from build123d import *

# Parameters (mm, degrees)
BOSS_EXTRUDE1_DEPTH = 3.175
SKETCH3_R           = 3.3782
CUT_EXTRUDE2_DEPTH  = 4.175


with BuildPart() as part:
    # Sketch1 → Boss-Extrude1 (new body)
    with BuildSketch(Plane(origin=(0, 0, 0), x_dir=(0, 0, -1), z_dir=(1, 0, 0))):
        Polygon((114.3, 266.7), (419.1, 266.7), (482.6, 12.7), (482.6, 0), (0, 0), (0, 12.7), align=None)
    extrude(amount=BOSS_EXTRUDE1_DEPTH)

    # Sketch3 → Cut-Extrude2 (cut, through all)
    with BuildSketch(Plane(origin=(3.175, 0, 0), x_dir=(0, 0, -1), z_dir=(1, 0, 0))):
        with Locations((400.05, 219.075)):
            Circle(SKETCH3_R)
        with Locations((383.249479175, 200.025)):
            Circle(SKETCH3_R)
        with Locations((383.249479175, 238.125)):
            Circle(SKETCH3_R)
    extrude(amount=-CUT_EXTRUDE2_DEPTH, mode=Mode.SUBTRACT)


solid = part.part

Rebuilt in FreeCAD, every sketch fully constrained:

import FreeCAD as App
import Part
import Sketcher
Q = App.Units.Quantity

doc = App.newDocument("Part")
body = doc.addObject("PartDesign::Body", "Body")

# Sketch on YZ plane
sketch1 = body.newObject("Sketcher::SketchObject", "Sketch")
sketch1.AttachmentSupport = (doc.getObject("YZ_Plane"), [""])
sketch1.MapMode = "FlatFace"
sketch1.addGeometry(Part.LineSegment(App.Vector(267, -419, 0), App.Vector(267, -114, 0)), False)
sketch1.addGeometry(Part.LineSegment(App.Vector(267, -114, 0), App.Vector(13, 0, 0)), False)
sketch1.addGeometry(Part.LineSegment(App.Vector(13, 0, 0), App.Vector(0, 0, 0)), False)
sketch1.addGeometry(Part.LineSegment(App.Vector(0, 0, 0), App.Vector(0, -483, 0)), False)
sketch1.addGeometry(Part.LineSegment(App.Vector(0, -483, 0), App.Vector(13, -483, 0)), False)
sketch1.addGeometry(Part.LineSegment(App.Vector(13, -483, 0), App.Vector(267, -419, 0)), False)
sketch1.addConstraint(Sketcher.Constraint("Coincident", 0, 2, 1, 1))
sketch1.addConstraint(Sketcher.Constraint("Coincident", 1, 2, 2, 1))
sketch1.addConstraint(Sketcher.Constraint("Coincident", 2, 2, 3, 1))
sketch1.addConstraint(Sketcher.Constraint("Coincident", 3, 2, 4, 1))
sketch1.addConstraint(Sketcher.Constraint("Coincident", 4, 2, 5, 1))
sketch1.addConstraint(Sketcher.Constraint("Coincident", 5, 2, 0, 1))
sketch1.addConstraint(Sketcher.Constraint("Vertical", 0))
sketch1.addConstraint(Sketcher.Constraint("Horizontal", 2))
sketch1.addConstraint(Sketcher.Constraint("Vertical", 3))
sketch1.addConstraint(Sketcher.Constraint("Horizontal", 4))
sketch1.addConstraint(Sketcher.Constraint("Coincident", 2, 2, -1, 1))
sketch1.addConstraint(Sketcher.Constraint("Vertical", 1, 2, 4, 2))
sketch1.addConstraint(Sketcher.Constraint("DistanceY", 0, 1, 0, 2, Q("12 in")))
sketch1.addConstraint(Sketcher.Constraint("DistanceY", 3, 2, 3, 1, Q("19 in")))
sketch1.addConstraint(Sketcher.Constraint("DistanceX", 2, 2, 2, 1, Q("0.5 in")))
sketch1.addConstraint(Sketcher.Constraint("DistanceX", 1, 2, 0, 2, Q("10 in")))
sketch1.addConstraint(Sketcher.Constraint("DistanceY", 0, 2, -1, 1, Q("4.5 in")))
pad1 = body.newObject("PartDesign::Pad", "Pad")
pad1.Profile = sketch1
pad1.Length = Q("0.125 in")

# Sketch on YZ plane
sketch2 = body.newObject("Sketcher::SketchObject", "Sketch001")
sketch2.AttachmentSupport = (doc.getObject("YZ_Plane"), [""])
sketch2.MapMode = "FlatFace"
sketch2.AttachmentOffset = App.Placement(App.Vector(0, 0, 0.125 * 25.4), App.Rotation())
sketch2.addGeometry(Part.Circle(App.Vector(219.1, -400.1, 0), App.Vector(0, 0, 1), 3.4), False)
sketch2.addGeometry(Part.Circle(App.Vector(200, -383.2, 0), App.Vector(0, 0, 1), 3.4), False)
sketch2.addGeometry(Part.Circle(App.Vector(238.1, -383.2, 0), App.Vector(0, 0, 1), 3.4), False)
sketch2.addConstraint(Sketcher.Constraint("Equal", 0, 1))
sketch2.addConstraint(Sketcher.Constraint("Equal", 1, 2))
sketch2.addConstraint(Sketcher.Constraint("Horizontal", 1, 3, 2, 3))
sketch2.addConstraint(Sketcher.Constraint("Diameter", 0, Q("0.266 in")))
sketch2.addConstraint(Sketcher.Constraint("DistanceX", 1, 3, 2, 3, Q("1.5 in")))
sketch2.addConstraint(Sketcher.Constraint("DistanceY", 0, 3, -1, 1, Q("15.75 in")))
sketch2.addConstraint(Sketcher.Constraint("DistanceX", 1, 3, 0, 3, Q("0.75 in")))
sketch2.addConstraint(Sketcher.Constraint("DistanceX", -1, 1, 0, 3, Q("8.625 in")))
sketch2.addConstraint(Sketcher.Constraint("DistanceY", 1, 3, -1, 1, Q("383.249479 mm")))
pocket1 = body.newObject("PartDesign::Pocket", "Pocket")
pocket1.Profile = sketch2
pocket1.Type = "ThroughAll"

doc.recompute()
